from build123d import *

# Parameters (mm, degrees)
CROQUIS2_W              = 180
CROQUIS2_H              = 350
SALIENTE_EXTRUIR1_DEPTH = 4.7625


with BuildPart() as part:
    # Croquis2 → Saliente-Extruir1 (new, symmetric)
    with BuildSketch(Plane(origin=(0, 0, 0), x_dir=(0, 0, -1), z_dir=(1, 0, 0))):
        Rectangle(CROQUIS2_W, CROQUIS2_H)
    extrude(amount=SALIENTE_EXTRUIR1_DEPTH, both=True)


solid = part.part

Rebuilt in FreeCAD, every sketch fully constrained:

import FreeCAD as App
import Part
import Sketcher


def add_polygon(sketch, points):
    """Adds a closed chain of lines whose ends are joined by coincident constraints."""
    first, n = sketch.GeometryCount, len(points)
    for a, b in zip(points, points[1:] + points[:1]):
        sketch.addGeometry(Part.LineSegment(App.Vector(*a, 0), App.Vector(*b, 0)), False)
    for i in range(n):
        sketch.addConstraint(Sketcher.Constraint("Coincident", first + i, 2, first + (i + 1) % n, 1))

doc = App.newDocument("Part")
body = doc.addObject("PartDesign::Body", "Body")

# Sketch on YZ plane
sketch1 = body.newObject("Sketcher::SketchObject", "Sketch")
sketch1.AttachmentSupport = (doc.getObject("YZ_Plane"), [""])
sketch1.MapMode = "FlatFace"
add_polygon(sketch1, [(175, 90), (-175, 90), (-175, -90), (175, -90)])  # lines 0-3
sketch1.addConstraint([
    Sketcher.Constraint("Horizontal", 0),
    Sketcher.Constraint("Vertical", 1),
    Sketcher.Constraint("Horizontal", 2),
    Sketcher.Constraint("Vertical", 3),
    Sketcher.Constraint("Symmetric", 0, 2, 2, 2, -1, 1),
    Sketcher.Constraint("DistanceX", 0, 2, 0, 1, 350.0),
    Sketcher.Constraint("DistanceY", 1, 2, 1, 1, 180.0),
])
pad1 = body.newObject("PartDesign::Pad", "Pad")
pad1.Profile = sketch1
pad1.Length = 9.525
pad1.Midplane = True

doc.recompute()
